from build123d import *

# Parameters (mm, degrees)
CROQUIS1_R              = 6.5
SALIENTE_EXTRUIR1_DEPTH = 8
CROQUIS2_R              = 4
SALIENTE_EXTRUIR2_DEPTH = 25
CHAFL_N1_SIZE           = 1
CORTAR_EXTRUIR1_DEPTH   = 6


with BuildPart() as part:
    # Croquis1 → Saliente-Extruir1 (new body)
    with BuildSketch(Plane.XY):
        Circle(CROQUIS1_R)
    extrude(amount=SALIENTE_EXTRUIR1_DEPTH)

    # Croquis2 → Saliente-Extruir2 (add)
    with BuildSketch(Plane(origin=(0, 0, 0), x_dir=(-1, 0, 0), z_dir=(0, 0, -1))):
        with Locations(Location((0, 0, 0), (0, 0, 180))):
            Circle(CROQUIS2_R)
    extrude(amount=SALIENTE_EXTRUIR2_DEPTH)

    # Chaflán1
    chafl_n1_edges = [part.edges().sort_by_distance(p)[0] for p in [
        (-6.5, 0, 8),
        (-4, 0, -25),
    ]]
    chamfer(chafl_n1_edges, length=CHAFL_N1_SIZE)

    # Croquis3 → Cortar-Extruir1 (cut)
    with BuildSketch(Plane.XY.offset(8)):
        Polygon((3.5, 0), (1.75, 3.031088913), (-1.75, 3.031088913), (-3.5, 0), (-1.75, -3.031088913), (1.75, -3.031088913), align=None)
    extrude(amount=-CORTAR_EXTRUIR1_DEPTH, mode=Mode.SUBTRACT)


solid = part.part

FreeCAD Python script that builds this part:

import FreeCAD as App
import Part
import Sketcher
from FreeCAD import Vector
Q = App.Units.Quantity


def edges_at(feature, points):
    """Names of the edges that pass closest to the given points."""
    edges = feature.Shape.Edges
    near = lambda p: min(range(len(edges)), key=lambda i: edges[i].distToShape(Part.Vertex(*p))[0])
    return sorted({f"Edge{near(p) + 1}" for p in points})


def add_polygon(sketch, points):
    """Adds a closed chain of lines whose ends are joined by coincident constraints."""
    first, n = sketch.GeometryCount, len(points)
    for a, b in zip(points, points[1:] + points[:1]):
        sketch.addGeometry(Part.LineSegment(App.Vector(*a, 0), App.Vector(*b, 0)), False)
    for i in range(n):
        sketch.addConstraint(Sketcher.Constraint("Coincident", first + i, 2, first + (i + 1) % n, 1))

doc = App.newDocument("Part")
body = doc.addObject("PartDesign::Body", "Body")

sketch1 = body.newObject("Sketcher::SketchObject", "Sketch")
sketch1.AttachmentSupport = (doc.getObject("XY_Plane"), [""])
sketch1.MapMode = "FlatFace"
sketch1.addGeometry(Part.Circle(Vector(0, 0, 0), Vector(0, 0, 1), 6), False)
sketch1.addConstraint([
    Sketcher.Constraint("Coincident", 0, 3, -1, 1),
    Sketcher.Constraint("Diameter", 0, 13.0),
])
pad1 = body.newObject("PartDesign::Pad", "Pad")
pad1.Profile = sketch1
pad1.Length = 8

sketch2 = body.newObject("Sketcher::SketchObject", "Sketch001")
sketch2.AttachmentSupport = (doc.getObject("XY_Plane"), [""])
sketch2.MapMode = "FlatFace"
sketch2.addGeometry(Part.Circle(Vector(0, 0, 0), Vector(0, 0, 1), 4), False)
sketch2.addConstraint([
    Sketcher.Constraint("Coincident", 0, 3, -1, 1),
    Sketcher.Constraint("Diameter", 0, 8.0),
])
pad2 = body.newObject("PartDesign::Pad", "Pad001")
pad2.Profile = sketch2
pad2.Length = 25
pad2.Reversed = True
doc.recompute()

chamfer = body.newObject("PartDesign::Chamfer", "Chamfer")
chamfer.Base = (pad2, edges_at(pad2, [(-6.5, 0, 8), (-4, 0, -25)]))
chamfer.Size = 1

sketch3 = body.newObject("Sketcher::SketchObject", "Sketch002")
sketch3.AttachmentSupport = (doc.getObject("XY_Plane"), [""])
sketch3.MapMode = "FlatFace"
sketch3.AttachmentOffset = App.Placement(Vector(0, 0, 8), App.Rotation())
add_polygon(sketch3, [(3.5, 0), (1.8, 3), (-1.8, 3), (-3.5, 0), (-1.8, -3), (1.8, -3)])
sketch3.addConstraint([
    Sketcher.Constraint("Horizontal", 1),
    Sketcher.Constraint("Horizontal", 4),
    Sketcher.Constraint("Symmetric", 0, 2, 3, 2, -1, 1),
    Sketcher.Constraint("Symmetric", 2, 2, 5, 2, -1, 1),
    Sketcher.Constraint("PointOnObject", 2, 2, -1),
    Sketcher.Constraint("Parallel", 2, 5),
    Sketcher.Constraint("Vertical", 1, 2, 3, 2),
    Sketcher.Constraint("Angle", 0, Q("120 deg")),
    Sketcher.Constraint("DistanceX", 1, 2, 1, 1, 3.5),
    Sketcher.Constraint("DistanceX", 2, 2, 5, 2, 7.0),
])
pocket1 = body.newObject("PartDesign::Pocket", "Pocket")
pocket1.Profile = sketch3
pocket1.Length = 6

doc.recompute()
